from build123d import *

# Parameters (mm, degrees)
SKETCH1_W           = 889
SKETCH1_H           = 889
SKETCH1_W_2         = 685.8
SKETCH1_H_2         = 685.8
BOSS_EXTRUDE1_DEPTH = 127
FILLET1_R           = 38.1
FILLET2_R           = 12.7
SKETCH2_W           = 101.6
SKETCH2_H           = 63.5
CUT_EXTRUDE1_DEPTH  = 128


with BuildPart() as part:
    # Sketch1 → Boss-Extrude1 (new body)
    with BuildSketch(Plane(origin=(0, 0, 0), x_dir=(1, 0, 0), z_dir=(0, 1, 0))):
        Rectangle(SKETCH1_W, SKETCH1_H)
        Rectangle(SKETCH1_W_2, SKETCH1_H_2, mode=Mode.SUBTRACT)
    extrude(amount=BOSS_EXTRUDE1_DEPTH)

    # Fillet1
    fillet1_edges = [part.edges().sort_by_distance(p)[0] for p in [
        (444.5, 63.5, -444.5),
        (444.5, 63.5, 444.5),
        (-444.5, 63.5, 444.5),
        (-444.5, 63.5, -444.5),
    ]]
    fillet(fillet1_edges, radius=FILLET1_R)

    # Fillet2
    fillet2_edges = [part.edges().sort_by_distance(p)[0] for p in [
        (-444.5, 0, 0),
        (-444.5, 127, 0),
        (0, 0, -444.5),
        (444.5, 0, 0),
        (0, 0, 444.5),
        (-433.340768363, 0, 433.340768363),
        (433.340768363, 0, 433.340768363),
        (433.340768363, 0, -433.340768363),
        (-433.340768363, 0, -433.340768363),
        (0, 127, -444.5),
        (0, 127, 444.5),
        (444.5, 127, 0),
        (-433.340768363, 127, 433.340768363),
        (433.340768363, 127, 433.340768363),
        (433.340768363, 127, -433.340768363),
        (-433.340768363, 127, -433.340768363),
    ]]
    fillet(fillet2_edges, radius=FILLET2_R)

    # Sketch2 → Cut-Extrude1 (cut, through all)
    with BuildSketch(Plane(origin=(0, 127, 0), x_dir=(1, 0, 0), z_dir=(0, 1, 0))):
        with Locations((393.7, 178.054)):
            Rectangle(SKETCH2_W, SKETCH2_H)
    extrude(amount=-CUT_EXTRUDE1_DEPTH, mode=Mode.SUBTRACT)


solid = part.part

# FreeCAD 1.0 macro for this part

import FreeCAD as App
import Part
import Sketcher
from FreeCAD import Vector
Q = App.Units.Quantity


def edges_at(feature, points):
    """Names of the edges that pass closest to the given points."""
    edges = feature.Shape.Edges
    near = lambda p: min(range(len(edges)), key=lambda i: edges[i].distToShape(Part.Vertex(*p))[0])
    return sorted({f"Edge{near(p) + 1}" for p in points})

doc = App.newDocument("Part")
body = doc.addObject("PartDesign::Body", "Body")

sketch1 = body.newObject("Sketcher::SketchObject", "Sketch")
sketch1.AttachmentSupport = (doc.getObject("XZ_Plane"), [""])
sketch1.MapMode = "FlatFace"
sketch1.addGeometry([
    Part.LineSegment(Vector(-444, -444, 0), Vector(-444, 444, 0)),
    Part.LineSegment(Vector(-444, 444, 0), Vector(444, 444, 0)),
    Part.LineSegment(Vector(444, 444, 0), Vector(444, -444, 0)),
    Part.LineSegment(Vector(444, -444, 0), Vector(-444, -444, 0)),
    Part.LineSegment(Vector(343, 343, 0), Vector(-343, 343, 0)),
    Part.LineSegment(Vector(-343, 343, 0), Vector(-343, -343, 0)),
    Part.LineSegment(Vector(-343, -343, 0), Vector(343, -343, 0)),
    Part.LineSegment(Vector(343, -343, 0), Vector(343, 343, 0)),
], False)
sketch1.addConstraint([
    Sketcher.Constraint("Coincident", 0, 2, 1, 1),
    Sketcher.Constraint("Coincident", 1, 2, 2, 1),
    Sketcher.Constraint("Coincident", 2, 2, 3, 1),
    Sketcher.Constraint("Coincident", 3, 2, 0, 1),
    Sketcher.Constraint("Coincident", 4, 2, 5, 1),
    Sketcher.Constraint("Coincident", 5, 2, 6, 1),
    Sketcher.Constraint("Coincident", 6, 2, 7, 1),
    Sketcher.Constraint("Coincident", 7, 2, 4, 1),
    Sketcher.Constraint("Vertical", 0),
    Sketcher.Constraint("Horizontal", 1),
    Sketcher.Constraint("Vertical", 2),
    Sketcher.Constraint("Horizontal", 3),
    Sketcher.Constraint("Horizontal", 4),
    Sketcher.Constraint("Vertical", 5),
    Sketcher.Constraint("Horizontal", 6),
    Sketcher.Constraint("Vertical", 7),
    Sketcher.Constraint("Symmetric", 0, 2, 2, 2, -1, 1),
    Sketcher.Constraint("Symmetric", 4, 2, 6, 2, -1, 1),
    Sketcher.Constraint("Equal", 3, 0),
    Sketcher.Constraint("Equal", 6, 5),
    Sketcher.Constraint("DistanceX", 1, 1, 1, 2, Q("35 in")),
    Sketcher.Constraint("DistanceX", 4, 2, 4, 1, Q("27 in")),
])
pad1 = body.newObject("PartDesign::Pad", "Pad")
pad1.Profile = sketch1
pad1.Length = Q("5 in")
pad1.Reversed = True
doc.recompute()

fillet = body.newObject("PartDesign::Fillet", "Fillet")
fillet.Base = (pad1, edges_at(pad1, [
    (444.5, 63.5, -444.5),
    (444.5, 63.5, 444.5),
    (-444.5, 63.5, 444.5),
    (-444.5, 63.5, -444.5),
]))
fillet.Radius = Q("1.5 in")
doc.recompute()

fillet2 = body.newObject("PartDesign::Fillet", "Fillet001")
fillet2.Base = (fillet, edges_at(fillet, [
    (-444.5, 0, 0),
    (-444.5, 127, 0),
    (0, 0, -444.5),
    (444.5, 0, 0),
    (0, 0, 444.5),
    (-433.341, 0, 433.341),
    (433.341, 0, 433.341),
    (433.341, 0, -433.341),
    (-433.341, 0, -433.341),
    (0, 127, -444.5),
    (0, 127, 444.5),
    (444.5, 127, 0),
    (-433.341, 127, 433.341),
    (433.341, 127, 433.341),
    (433.341, 127, -433.341),
    (-433.341, 127, -433.341),
]))
fillet2.Radius = Q("0.5 in")

sketch2 = body.newObject("Sketcher::SketchObject", "Sketch001")
sketch2.AttachmentSupport = (doc.getObject("XZ_Plane"), [""])
sketch2.MapMode = "FlatFace"
sketch2.AttachmentOffset = App.Placement(Vector(0, 0, -5 * 25.4), App.Rotation())
sketch2.addGeometry([
    Part.LineSegment(Vector(343, -210, 0), Vector(343, -146, 0)),
    Part.LineSegment(Vector(343, -146, 0), Vector(444, -146, 0)),
    Part.LineSegment(Vector(444, -146, 0), Vector(444, -210, 0)),
    Part.LineSegment(Vector(444, -210, 0), Vector(343, -210, 0)),
], False)
sketch2.addConstraint([
    Sketcher.Constraint("Coincident", 0, 2, 1, 1),
    Sketcher.Constraint("Coincident", 1, 2, 2, 1),
    Sketcher.Constraint("Coincident", 2, 2, 3, 1),
    Sketcher.Constraint("Coincident", 3, 2, 0, 1),
    Sketcher.Constraint("Vertical", 0),
    Sketcher.Constraint("Horizontal", 1),
    Sketcher.Constraint("Vertical", 2),
    Sketcher.Constraint("Horizontal", 3),
    Sketcher.Constraint("DistanceX", 1, 1, 1, 2, Q("4 in")),
    Sketcher.Constraint("DistanceY", 0, 1, 0, 2, Q("2.5 in")),
    Sketcher.Constraint("DistanceX", -1, 1, 0, 2, Q("13.5 in")),
    Sketcher.Constraint("DistanceY", 0, 2, -1, 1, Q("5.76 in")),
])
pocket1 = body.newObject("PartDesign::Pocket", "Pocket")
pocket1.Profile = sketch2
pocket1.Type = "ThroughAll"
pocket1.Reversed = True

doc.recompute()
